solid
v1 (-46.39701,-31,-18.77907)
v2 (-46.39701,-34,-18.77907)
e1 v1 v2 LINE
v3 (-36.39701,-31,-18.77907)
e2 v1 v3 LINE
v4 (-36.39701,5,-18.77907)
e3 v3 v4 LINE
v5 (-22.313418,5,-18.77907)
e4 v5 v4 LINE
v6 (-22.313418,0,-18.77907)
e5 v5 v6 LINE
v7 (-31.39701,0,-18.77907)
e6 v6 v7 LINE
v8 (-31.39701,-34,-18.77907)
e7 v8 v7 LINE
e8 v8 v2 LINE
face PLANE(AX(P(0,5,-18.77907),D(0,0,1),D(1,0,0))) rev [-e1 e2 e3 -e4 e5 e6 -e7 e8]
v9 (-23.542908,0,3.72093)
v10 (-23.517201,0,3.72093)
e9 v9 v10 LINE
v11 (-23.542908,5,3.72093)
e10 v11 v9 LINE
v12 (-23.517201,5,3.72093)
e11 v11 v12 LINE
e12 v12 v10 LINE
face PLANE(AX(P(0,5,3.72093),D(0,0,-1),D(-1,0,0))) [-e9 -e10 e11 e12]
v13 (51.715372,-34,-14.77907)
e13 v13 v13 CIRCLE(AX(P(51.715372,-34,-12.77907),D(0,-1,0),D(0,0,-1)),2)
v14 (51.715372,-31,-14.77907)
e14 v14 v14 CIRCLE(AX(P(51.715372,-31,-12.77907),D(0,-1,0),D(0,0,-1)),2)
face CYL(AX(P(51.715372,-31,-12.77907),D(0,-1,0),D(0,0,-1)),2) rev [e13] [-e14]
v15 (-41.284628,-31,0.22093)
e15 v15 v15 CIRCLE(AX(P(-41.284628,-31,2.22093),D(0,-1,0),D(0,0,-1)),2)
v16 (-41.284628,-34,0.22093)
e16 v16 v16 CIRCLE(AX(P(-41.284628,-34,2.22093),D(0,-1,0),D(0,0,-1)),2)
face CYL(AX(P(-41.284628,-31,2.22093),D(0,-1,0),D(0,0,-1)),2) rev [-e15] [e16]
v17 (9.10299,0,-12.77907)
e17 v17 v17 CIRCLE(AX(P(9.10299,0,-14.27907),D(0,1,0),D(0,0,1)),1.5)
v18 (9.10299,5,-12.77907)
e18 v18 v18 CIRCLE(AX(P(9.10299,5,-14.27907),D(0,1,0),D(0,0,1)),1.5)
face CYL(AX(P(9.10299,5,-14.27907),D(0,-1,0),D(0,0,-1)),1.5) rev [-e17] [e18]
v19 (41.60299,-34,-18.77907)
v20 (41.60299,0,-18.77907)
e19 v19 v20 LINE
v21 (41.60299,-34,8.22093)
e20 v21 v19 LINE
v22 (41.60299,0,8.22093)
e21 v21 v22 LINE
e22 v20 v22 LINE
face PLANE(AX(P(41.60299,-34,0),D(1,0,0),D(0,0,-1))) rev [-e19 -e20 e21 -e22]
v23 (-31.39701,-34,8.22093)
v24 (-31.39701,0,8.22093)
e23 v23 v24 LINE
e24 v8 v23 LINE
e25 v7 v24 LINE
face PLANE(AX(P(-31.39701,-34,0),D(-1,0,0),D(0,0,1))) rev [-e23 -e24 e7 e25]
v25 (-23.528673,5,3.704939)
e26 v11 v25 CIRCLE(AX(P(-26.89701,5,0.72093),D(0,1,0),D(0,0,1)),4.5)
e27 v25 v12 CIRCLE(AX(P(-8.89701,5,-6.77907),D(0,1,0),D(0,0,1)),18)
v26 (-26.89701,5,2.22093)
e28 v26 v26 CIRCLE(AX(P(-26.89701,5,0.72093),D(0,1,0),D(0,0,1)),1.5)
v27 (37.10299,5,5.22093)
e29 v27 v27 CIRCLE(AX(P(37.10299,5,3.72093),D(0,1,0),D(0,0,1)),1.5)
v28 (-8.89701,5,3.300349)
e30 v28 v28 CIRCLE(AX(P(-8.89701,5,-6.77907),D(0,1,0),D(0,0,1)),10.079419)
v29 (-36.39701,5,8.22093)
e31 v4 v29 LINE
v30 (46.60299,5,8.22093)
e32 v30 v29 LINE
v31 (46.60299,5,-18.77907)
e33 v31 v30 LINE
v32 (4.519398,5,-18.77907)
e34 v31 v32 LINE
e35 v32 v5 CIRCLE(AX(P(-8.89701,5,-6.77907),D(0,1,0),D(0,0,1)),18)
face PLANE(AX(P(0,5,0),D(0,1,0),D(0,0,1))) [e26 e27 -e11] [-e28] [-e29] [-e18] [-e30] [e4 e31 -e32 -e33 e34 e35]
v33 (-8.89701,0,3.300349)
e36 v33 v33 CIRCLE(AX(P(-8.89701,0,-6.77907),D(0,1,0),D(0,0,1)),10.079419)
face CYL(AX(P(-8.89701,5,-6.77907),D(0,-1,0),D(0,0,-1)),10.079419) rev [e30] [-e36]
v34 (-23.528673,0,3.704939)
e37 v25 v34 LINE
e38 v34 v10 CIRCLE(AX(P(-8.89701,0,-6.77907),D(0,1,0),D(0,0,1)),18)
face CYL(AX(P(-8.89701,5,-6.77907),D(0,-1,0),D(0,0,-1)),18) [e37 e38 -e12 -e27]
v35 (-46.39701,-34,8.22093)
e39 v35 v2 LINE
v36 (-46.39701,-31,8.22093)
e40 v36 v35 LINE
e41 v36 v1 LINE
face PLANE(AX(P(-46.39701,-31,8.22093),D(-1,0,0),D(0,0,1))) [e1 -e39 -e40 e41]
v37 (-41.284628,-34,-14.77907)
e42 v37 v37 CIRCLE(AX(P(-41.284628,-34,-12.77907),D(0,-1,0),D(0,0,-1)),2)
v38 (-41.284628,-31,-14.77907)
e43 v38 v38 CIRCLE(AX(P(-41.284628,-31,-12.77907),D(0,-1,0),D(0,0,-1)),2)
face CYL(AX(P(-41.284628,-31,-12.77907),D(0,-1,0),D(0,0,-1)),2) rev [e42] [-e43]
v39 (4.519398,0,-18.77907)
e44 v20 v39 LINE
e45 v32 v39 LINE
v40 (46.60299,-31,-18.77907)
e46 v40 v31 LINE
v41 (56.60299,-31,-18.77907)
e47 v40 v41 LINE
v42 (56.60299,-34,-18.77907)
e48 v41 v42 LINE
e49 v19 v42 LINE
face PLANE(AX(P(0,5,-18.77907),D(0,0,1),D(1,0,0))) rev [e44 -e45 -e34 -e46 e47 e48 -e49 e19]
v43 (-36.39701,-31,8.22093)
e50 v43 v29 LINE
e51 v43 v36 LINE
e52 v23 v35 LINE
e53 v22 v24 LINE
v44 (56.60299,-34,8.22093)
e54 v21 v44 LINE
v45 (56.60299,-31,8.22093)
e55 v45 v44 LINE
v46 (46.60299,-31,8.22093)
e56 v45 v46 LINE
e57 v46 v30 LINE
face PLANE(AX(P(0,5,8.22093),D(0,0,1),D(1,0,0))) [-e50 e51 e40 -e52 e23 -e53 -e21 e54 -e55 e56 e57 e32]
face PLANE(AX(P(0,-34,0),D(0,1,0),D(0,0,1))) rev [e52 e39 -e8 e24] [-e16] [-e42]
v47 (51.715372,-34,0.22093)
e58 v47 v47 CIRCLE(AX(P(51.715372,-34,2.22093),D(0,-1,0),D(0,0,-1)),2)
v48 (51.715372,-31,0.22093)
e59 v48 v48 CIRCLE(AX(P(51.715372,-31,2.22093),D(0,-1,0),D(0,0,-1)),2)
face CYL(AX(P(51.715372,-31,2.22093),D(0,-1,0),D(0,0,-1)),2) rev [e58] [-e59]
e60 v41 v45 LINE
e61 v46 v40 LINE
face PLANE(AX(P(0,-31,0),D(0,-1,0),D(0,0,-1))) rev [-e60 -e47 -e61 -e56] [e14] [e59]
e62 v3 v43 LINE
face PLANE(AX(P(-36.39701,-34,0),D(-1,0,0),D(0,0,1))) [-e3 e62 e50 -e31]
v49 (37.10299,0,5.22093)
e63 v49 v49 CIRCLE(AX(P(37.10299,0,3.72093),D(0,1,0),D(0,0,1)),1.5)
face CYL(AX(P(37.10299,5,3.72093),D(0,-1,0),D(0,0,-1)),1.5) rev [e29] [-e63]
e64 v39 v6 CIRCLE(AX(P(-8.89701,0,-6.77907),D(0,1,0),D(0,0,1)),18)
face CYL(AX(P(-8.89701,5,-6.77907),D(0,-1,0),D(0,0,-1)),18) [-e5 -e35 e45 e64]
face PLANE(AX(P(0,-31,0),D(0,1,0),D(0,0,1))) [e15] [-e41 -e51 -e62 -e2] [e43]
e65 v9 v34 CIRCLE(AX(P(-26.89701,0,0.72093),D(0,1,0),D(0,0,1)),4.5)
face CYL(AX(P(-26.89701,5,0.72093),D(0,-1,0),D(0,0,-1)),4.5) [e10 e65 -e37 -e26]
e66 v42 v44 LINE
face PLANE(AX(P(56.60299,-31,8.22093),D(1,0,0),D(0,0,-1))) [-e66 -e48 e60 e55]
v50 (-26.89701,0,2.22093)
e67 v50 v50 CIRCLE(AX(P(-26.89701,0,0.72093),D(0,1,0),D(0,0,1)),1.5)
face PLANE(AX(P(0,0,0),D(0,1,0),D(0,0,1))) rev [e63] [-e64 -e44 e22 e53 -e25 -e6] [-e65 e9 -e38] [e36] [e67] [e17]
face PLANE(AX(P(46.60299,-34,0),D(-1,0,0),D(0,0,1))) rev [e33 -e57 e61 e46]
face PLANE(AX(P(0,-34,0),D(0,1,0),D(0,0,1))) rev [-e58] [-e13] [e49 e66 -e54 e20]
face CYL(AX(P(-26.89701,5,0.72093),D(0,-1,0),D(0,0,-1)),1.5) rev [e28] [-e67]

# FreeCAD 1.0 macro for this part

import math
import FreeCAD as App
import Part
import Sketcher

V = App.Vector

doc = App.newDocument("Part")
body = doc.addObject("PartDesign::Body", "Body")

sketch1 = body.newObject("Sketcher::SketchObject", "Sketch")
sketch1.AttachmentSupport = (doc.getObject("XZ_Plane"), [""])
sketch1.MapMode = "FlatFace"
sketch1.addGeometry([
    Part.LineSegment(V(41.60299, -18.77907, 0), V(4.519398, -18.77907, 0)),
    Part.ArcOfCircle(Part.Circle(V(-8.89701, -6.77907, 0), V(0, 0, 1), 18), math.radians(-138.189685), math.radians(-41.810315)),
    Part.LineSegment(V(-22.313418, -18.77907, 0), V(-31.39701, -18.77907, 0)),
    Part.LineSegment(V(-31.39701, -18.77907, 0), V(-31.39701, 8.22093, 0)),
    Part.LineSegment(V(-31.39701, 8.22093, 0), V(41.60299, 8.22093, 0)),
    Part.LineSegment(V(41.60299, 8.22093, 0), V(41.60299, -18.77907, 0)),
    Part.LineSegment(V(-23.517201, 3.72093, 0), V(-23.542908, 3.72093, 0)),
    Part.ArcOfCircle(Part.Circle(V(-26.897157, 0.720799, 0), V(0, 0, 1), 4.500197), math.radians(41.537729), math.radians(41.81031)),
    Part.ArcOfCircle(Part.Circle(V(-8.897215, -6.778922, 0), V(0, 0, 1), 17.999748), math.radians(144.314666), math.radians(144.377312)),
    Part.Circle(V(-26.89701, 0.72093, 0), V(0, 0, 1), 1.5),
    Part.Circle(V(37.10299, 3.72093, 0), V(0, 0, 1), 1.5),
    Part.Circle(V(-8.89701, -6.77907, 0), V(0, 0, 1), 10.079419),
    Part.Circle(V(9.10299, -14.27907, 0), V(0, 0, 1), 1.5),
], False)
sketch1.addConstraint([
    Sketcher.Constraint("Coincident", 0, 2, 1, 2),
    Sketcher.Constraint("Coincident", 1, 1, 2, 1),
    Sketcher.Constraint("Coincident", 2, 2, 3, 1),
    Sketcher.Constraint("Coincident", 3, 2, 4, 1),
    Sketcher.Constraint("Coincident", 4, 2, 5, 1),
    Sketcher.Constraint("Coincident", 5, 2, 0, 1),
    Sketcher.Constraint("Coincident", 6, 2, 7, 2),
    Sketcher.Constraint("Coincident", 7, 1, 8, 2),
    Sketcher.Constraint("Coincident", 8, 1, 6, 1),
    Sketcher.Constraint("Horizontal", 0),
    Sketcher.Constraint("Horizontal", 2),
    Sketcher.Constraint("Vertical", 3),
    Sketcher.Constraint("Horizontal", 4),
    Sketcher.Constraint("Vertical", 5),
    Sketcher.Constraint("Horizontal", 6),
    Sketcher.Constraint("Coincident", 11, 3, 1, 3),
    Sketcher.Constraint("Equal", 9, 10),
    Sketcher.Constraint("Equal", 10, 12),
    Sketcher.Constraint("Horizontal", 0, 2, 1, 1),
    Sketcher.Constraint("Horizontal", 10, 3, 6, 2),
    Sketcher.Constraint("Diameter", 9, 3.0),
    Sketcher.Constraint("Radius", 1, 18.0),
    Sketcher.Constraint("DistanceX", 4, 1, 4, 2, 73.0),
    Sketcher.Constraint("DistanceY", 3, 1, 3, 2, 27.0),
    Sketcher.Constraint("DistanceX", 9, 3, 1, 3, 18.0),
    Sketcher.Constraint("DistanceX", 1, 3, 10, 3, 46.0),
    Sketcher.Constraint("DistanceY", 9, 3, 10, 3, 3.0),
    Sketcher.Constraint("DistanceX", 1, 3, 12, 3, 18.0),
    Sketcher.Constraint("DistanceY", 12, 3, 10, 3, 18.0),
    Sketcher.Constraint("DistanceY", 0, 2, 1, 3, 12.0),
    Sketcher.Constraint("DistanceY", 1, 3, 9, 3, 7.5),
    Sketcher.Constraint("DistanceX", 2, 2, 9, 3, 4.5),
    Sketcher.Constraint("Diameter", 11, 20.158838),
    Sketcher.Constraint("Radius", 7, 4.500197),
    Sketcher.Constraint("Radius", 8, 17.999748),
    Sketcher.Constraint("DistanceY", -1, 1, 7, 3, 0.720799),
    Sketcher.Constraint("DistanceX", 8, 1, -1, 1, 23.517201),
    Sketcher.Constraint("DistanceX", 9, 3, 6, 2, 3.354102),
    Sketcher.Constraint("DistanceX", 6, 2, 6, 1, 0.025707),
    Sketcher.Constraint("DistanceY", 1, 3, -1, 1, 6.77907),
    Sketcher.Constraint("DistanceY", 8, 3, 7, 3, 7.499722),
])
pad1 = body.newObject("PartDesign::Pad", "Pad")
pad1.Profile = sketch1
pad1.Length = 5
pad1.Reversed = True

sketch2 = body.newObject("Sketcher::SketchObject", "Sketch001")
sketch2.AttachmentSupport = (doc.getObject("XZ_Plane"), [""])
sketch2.MapMode = "FlatFace"
sketch2.AttachmentOffset = App.Placement(V(0, 0, -5), App.Rotation())
sketch2.addGeometry([
    Part.LineSegment(V(-36.39701, -18.77907, 0), V(-36.39701, 8.22093, 0)),
    Part.LineSegment(V(-36.39701, 8.22093, 0), V(-31.39701, 8.22093, 0)),
    Part.LineSegment(V(-31.39701, 8.22093, 0), V(-31.39701, -18.77907, 0)),
    Part.LineSegment(V(-31.39701, -18.77907, 0), V(-36.39701, -18.77907, 0)),
    Part.LineSegment(V(41.60299, -18.77907, 0), V(41.60299, 8.22093, 0)),
    Part.LineSegment(V(41.60299, 8.22093, 0), V(46.60299, 8.22093, 0)),
    Part.LineSegment(V(46.60299, 8.22093, 0), V(46.60299, -18.77907, 0)),
    Part.LineSegment(V(46.60299, -18.77907, 0), V(41.60299, -18.77907, 0)),
], False)
sketch2.addConstraint([
    Sketcher.Constraint("Coincident", 0, 2, 1, 1),
    Sketcher.Constraint("Coincident", 1, 2, 2, 1),
    Sketcher.Constraint("Coincident", 2, 2, 3, 1),
    Sketcher.Constraint("Coincident", 3, 2, 0, 1),
    Sketcher.Constraint("Coincident", 4, 2, 5, 1),
    Sketcher.Constraint("Coincident", 5, 2, 6, 1),
    Sketcher.Constraint("Coincident", 6, 2, 7, 1),
    Sketcher.Constraint("Coincident", 7, 2, 4, 1),
    Sketcher.Constraint("Vertical", 0),
    Sketcher.Constraint("Horizontal", 1),
    Sketcher.Constraint("Vertical", 2),
    Sketcher.Constraint("Horizontal", 3),
    Sketcher.Constraint("Vertical", 4),
    Sketcher.Constraint("Horizontal", 5),
    Sketcher.Constraint("Vertical", 6),
    Sketcher.Constraint("Horizontal", 7),
    Sketcher.Constraint("Horizontal", 1, 2, 4, 2),
    Sketcher.Constraint("Horizontal", 3, 2, 6, 2),
    Sketcher.Constraint("Equal", 3, 5),
    Sketcher.Constraint("DistanceX", 1, 1, 1, 2, 5.0),
    Sketcher.Constraint("DistanceY", 0, 1, 0, 2, 27.0),
    Sketcher.Constraint("DistanceX", 1, 2, 4, 2, 73.0),
    Sketcher.Constraint("DistanceX", 0, 2, -1, 1, 36.39701),
    Sketcher.Constraint("DistanceY", -1, 1, 0, 2, 8.22093),
])
pad2 = body.newObject("PartDesign::Pad", "Pad001")
pad2.Profile = sketch2
pad2.Length = 39

sketch3 = body.newObject("Sketcher::SketchObject", "Sketch002")
sketch3.AttachmentSupport = (doc.getObject("XZ_Plane"), [""])
sketch3.MapMode = "FlatFace"
sketch3.AttachmentOffset = App.Placement(V(0, 0, 34), App.Rotation())
sketch3.addGeometry([
    Part.LineSegment(V(46.60299, 8.22093, 0), V(46.60299, -18.77907, 0)),
    Part.LineSegment(V(46.60299, -18.77907, 0), V(56.60299, -18.77907, 0)),
    Part.LineSegment(V(56.60299, -18.77907, 0), V(56.60299, 8.22093, 0)),
    Part.LineSegment(V(56.60299, 8.22093, 0), V(46.60299, 8.22093, 0)),
    Part.Circle(V(51.715372, -12.77907, 0), V(0, 0, 1), 2),
    Part.Circle(V(51.715372, 2.22093, 0), V(0, 0, 1), 2),
    Part.LineSegment(V(-46.39701, 8.22093, 0), V(-46.39701, -18.77907, 0)),
    Part.LineSegment(V(-46.39701, -18.77907, 0), V(-36.39701, -18.77907, 0)),
    Part.LineSegment(V(-36.39701, -18.77907, 0), V(-36.39701, 8.22093, 0)),
    Part.LineSegment(V(-36.39701, 8.22093, 0), V(-46.39701, 8.22093, 0)),
    Part.Circle(V(-41.284628, -12.77907, 0), V(0, 0, 1), 2),
    Part.Circle(V(-41.284628, 2.22093, 0), V(0, 0, 1), 2),
], False)
sketch3.addConstraint([
    Sketcher.Constraint("Coincident", 0, 2, 1, 1),
    Sketcher.Constraint("Coincident", 1, 2, 2, 1),
    Sketcher.Constraint("Coincident", 2, 2, 3, 1),
    Sketcher.Constraint("Coincident", 3, 2, 0, 1),
    Sketcher.Constraint("Coincident", 6, 2, 7, 1),
    Sketcher.Constraint("Coincident", 7, 2, 8, 1),
    Sketcher.Constraint("Coincident", 8, 2, 9, 1),
    Sketcher.Constraint("Coincident", 9, 2, 6, 1),
    Sketcher.Constraint("Vertical", 0),
    Sketcher.Constraint("Horizontal", 1),
    Sketcher.Constraint("Vertical", 2),
    Sketcher.Constraint("Horizontal", 3),
    Sketcher.Constraint("Vertical", 6),
    Sketcher.Constraint("Horizontal", 7),
    Sketcher.Constraint("Vertical", 8),
    Sketcher.Constraint("Horizontal", 9),
    Sketcher.Constraint("Equal", 4, 5),
    Sketcher.Constraint("Equal", 5, 10),
    Sketcher.Constraint("Equal", 10, 11),
    Sketcher.Constraint("Horizontal", 4, 3, 10, 3),
    Sketcher.Constraint("Horizontal", 5, 3, 11, 3),
    Sketcher.Constraint("Horizontal", 1, 2, 6, 2),
    Sketcher.Constraint("Horizontal", 3, 2, 8, 2),
    Sketcher.Constraint("Vertical", 4, 3, 5, 3),
    Sketcher.Constraint("Vertical", 10, 3, 11, 3),
    Sketcher.Constraint("Equal", 3, 7),
    Sketcher.Constraint("Diameter", 4, 4.0),
    Sketcher.Constraint("DistanceX", 1, 1, 1, 2, 10.0),
    Sketcher.Constraint("DistanceY", 0, 2, 0, 1, 27.0),
    Sketcher.Constraint("DistanceY", 4, 3, 5, 3, 15.0),
    Sketcher.Constraint("DistanceX", 10, 3, 4, 3, 93.0),
    Sketcher.Constraint("DistanceY", 0, 2, 4, 3, 6.0),
    Sketcher.Constraint("DistanceX", 6, 2, 0, 2, 93.0),
    Sketcher.Constraint("DistanceY", 4, 3, -1, 1, 12.77907),
    Sketcher.Constraint("DistanceX", -1, 1, 0, 2, 46.60299),
    Sketcher.Constraint("DistanceX", -1, 1, 4, 3, 51.715372),
])
pad3 = body.newObject("PartDesign::Pad", "Pad002")
pad3.Profile = sketch3
pad3.Length = 3
pad3.Reversed = True

doc.recompute()
